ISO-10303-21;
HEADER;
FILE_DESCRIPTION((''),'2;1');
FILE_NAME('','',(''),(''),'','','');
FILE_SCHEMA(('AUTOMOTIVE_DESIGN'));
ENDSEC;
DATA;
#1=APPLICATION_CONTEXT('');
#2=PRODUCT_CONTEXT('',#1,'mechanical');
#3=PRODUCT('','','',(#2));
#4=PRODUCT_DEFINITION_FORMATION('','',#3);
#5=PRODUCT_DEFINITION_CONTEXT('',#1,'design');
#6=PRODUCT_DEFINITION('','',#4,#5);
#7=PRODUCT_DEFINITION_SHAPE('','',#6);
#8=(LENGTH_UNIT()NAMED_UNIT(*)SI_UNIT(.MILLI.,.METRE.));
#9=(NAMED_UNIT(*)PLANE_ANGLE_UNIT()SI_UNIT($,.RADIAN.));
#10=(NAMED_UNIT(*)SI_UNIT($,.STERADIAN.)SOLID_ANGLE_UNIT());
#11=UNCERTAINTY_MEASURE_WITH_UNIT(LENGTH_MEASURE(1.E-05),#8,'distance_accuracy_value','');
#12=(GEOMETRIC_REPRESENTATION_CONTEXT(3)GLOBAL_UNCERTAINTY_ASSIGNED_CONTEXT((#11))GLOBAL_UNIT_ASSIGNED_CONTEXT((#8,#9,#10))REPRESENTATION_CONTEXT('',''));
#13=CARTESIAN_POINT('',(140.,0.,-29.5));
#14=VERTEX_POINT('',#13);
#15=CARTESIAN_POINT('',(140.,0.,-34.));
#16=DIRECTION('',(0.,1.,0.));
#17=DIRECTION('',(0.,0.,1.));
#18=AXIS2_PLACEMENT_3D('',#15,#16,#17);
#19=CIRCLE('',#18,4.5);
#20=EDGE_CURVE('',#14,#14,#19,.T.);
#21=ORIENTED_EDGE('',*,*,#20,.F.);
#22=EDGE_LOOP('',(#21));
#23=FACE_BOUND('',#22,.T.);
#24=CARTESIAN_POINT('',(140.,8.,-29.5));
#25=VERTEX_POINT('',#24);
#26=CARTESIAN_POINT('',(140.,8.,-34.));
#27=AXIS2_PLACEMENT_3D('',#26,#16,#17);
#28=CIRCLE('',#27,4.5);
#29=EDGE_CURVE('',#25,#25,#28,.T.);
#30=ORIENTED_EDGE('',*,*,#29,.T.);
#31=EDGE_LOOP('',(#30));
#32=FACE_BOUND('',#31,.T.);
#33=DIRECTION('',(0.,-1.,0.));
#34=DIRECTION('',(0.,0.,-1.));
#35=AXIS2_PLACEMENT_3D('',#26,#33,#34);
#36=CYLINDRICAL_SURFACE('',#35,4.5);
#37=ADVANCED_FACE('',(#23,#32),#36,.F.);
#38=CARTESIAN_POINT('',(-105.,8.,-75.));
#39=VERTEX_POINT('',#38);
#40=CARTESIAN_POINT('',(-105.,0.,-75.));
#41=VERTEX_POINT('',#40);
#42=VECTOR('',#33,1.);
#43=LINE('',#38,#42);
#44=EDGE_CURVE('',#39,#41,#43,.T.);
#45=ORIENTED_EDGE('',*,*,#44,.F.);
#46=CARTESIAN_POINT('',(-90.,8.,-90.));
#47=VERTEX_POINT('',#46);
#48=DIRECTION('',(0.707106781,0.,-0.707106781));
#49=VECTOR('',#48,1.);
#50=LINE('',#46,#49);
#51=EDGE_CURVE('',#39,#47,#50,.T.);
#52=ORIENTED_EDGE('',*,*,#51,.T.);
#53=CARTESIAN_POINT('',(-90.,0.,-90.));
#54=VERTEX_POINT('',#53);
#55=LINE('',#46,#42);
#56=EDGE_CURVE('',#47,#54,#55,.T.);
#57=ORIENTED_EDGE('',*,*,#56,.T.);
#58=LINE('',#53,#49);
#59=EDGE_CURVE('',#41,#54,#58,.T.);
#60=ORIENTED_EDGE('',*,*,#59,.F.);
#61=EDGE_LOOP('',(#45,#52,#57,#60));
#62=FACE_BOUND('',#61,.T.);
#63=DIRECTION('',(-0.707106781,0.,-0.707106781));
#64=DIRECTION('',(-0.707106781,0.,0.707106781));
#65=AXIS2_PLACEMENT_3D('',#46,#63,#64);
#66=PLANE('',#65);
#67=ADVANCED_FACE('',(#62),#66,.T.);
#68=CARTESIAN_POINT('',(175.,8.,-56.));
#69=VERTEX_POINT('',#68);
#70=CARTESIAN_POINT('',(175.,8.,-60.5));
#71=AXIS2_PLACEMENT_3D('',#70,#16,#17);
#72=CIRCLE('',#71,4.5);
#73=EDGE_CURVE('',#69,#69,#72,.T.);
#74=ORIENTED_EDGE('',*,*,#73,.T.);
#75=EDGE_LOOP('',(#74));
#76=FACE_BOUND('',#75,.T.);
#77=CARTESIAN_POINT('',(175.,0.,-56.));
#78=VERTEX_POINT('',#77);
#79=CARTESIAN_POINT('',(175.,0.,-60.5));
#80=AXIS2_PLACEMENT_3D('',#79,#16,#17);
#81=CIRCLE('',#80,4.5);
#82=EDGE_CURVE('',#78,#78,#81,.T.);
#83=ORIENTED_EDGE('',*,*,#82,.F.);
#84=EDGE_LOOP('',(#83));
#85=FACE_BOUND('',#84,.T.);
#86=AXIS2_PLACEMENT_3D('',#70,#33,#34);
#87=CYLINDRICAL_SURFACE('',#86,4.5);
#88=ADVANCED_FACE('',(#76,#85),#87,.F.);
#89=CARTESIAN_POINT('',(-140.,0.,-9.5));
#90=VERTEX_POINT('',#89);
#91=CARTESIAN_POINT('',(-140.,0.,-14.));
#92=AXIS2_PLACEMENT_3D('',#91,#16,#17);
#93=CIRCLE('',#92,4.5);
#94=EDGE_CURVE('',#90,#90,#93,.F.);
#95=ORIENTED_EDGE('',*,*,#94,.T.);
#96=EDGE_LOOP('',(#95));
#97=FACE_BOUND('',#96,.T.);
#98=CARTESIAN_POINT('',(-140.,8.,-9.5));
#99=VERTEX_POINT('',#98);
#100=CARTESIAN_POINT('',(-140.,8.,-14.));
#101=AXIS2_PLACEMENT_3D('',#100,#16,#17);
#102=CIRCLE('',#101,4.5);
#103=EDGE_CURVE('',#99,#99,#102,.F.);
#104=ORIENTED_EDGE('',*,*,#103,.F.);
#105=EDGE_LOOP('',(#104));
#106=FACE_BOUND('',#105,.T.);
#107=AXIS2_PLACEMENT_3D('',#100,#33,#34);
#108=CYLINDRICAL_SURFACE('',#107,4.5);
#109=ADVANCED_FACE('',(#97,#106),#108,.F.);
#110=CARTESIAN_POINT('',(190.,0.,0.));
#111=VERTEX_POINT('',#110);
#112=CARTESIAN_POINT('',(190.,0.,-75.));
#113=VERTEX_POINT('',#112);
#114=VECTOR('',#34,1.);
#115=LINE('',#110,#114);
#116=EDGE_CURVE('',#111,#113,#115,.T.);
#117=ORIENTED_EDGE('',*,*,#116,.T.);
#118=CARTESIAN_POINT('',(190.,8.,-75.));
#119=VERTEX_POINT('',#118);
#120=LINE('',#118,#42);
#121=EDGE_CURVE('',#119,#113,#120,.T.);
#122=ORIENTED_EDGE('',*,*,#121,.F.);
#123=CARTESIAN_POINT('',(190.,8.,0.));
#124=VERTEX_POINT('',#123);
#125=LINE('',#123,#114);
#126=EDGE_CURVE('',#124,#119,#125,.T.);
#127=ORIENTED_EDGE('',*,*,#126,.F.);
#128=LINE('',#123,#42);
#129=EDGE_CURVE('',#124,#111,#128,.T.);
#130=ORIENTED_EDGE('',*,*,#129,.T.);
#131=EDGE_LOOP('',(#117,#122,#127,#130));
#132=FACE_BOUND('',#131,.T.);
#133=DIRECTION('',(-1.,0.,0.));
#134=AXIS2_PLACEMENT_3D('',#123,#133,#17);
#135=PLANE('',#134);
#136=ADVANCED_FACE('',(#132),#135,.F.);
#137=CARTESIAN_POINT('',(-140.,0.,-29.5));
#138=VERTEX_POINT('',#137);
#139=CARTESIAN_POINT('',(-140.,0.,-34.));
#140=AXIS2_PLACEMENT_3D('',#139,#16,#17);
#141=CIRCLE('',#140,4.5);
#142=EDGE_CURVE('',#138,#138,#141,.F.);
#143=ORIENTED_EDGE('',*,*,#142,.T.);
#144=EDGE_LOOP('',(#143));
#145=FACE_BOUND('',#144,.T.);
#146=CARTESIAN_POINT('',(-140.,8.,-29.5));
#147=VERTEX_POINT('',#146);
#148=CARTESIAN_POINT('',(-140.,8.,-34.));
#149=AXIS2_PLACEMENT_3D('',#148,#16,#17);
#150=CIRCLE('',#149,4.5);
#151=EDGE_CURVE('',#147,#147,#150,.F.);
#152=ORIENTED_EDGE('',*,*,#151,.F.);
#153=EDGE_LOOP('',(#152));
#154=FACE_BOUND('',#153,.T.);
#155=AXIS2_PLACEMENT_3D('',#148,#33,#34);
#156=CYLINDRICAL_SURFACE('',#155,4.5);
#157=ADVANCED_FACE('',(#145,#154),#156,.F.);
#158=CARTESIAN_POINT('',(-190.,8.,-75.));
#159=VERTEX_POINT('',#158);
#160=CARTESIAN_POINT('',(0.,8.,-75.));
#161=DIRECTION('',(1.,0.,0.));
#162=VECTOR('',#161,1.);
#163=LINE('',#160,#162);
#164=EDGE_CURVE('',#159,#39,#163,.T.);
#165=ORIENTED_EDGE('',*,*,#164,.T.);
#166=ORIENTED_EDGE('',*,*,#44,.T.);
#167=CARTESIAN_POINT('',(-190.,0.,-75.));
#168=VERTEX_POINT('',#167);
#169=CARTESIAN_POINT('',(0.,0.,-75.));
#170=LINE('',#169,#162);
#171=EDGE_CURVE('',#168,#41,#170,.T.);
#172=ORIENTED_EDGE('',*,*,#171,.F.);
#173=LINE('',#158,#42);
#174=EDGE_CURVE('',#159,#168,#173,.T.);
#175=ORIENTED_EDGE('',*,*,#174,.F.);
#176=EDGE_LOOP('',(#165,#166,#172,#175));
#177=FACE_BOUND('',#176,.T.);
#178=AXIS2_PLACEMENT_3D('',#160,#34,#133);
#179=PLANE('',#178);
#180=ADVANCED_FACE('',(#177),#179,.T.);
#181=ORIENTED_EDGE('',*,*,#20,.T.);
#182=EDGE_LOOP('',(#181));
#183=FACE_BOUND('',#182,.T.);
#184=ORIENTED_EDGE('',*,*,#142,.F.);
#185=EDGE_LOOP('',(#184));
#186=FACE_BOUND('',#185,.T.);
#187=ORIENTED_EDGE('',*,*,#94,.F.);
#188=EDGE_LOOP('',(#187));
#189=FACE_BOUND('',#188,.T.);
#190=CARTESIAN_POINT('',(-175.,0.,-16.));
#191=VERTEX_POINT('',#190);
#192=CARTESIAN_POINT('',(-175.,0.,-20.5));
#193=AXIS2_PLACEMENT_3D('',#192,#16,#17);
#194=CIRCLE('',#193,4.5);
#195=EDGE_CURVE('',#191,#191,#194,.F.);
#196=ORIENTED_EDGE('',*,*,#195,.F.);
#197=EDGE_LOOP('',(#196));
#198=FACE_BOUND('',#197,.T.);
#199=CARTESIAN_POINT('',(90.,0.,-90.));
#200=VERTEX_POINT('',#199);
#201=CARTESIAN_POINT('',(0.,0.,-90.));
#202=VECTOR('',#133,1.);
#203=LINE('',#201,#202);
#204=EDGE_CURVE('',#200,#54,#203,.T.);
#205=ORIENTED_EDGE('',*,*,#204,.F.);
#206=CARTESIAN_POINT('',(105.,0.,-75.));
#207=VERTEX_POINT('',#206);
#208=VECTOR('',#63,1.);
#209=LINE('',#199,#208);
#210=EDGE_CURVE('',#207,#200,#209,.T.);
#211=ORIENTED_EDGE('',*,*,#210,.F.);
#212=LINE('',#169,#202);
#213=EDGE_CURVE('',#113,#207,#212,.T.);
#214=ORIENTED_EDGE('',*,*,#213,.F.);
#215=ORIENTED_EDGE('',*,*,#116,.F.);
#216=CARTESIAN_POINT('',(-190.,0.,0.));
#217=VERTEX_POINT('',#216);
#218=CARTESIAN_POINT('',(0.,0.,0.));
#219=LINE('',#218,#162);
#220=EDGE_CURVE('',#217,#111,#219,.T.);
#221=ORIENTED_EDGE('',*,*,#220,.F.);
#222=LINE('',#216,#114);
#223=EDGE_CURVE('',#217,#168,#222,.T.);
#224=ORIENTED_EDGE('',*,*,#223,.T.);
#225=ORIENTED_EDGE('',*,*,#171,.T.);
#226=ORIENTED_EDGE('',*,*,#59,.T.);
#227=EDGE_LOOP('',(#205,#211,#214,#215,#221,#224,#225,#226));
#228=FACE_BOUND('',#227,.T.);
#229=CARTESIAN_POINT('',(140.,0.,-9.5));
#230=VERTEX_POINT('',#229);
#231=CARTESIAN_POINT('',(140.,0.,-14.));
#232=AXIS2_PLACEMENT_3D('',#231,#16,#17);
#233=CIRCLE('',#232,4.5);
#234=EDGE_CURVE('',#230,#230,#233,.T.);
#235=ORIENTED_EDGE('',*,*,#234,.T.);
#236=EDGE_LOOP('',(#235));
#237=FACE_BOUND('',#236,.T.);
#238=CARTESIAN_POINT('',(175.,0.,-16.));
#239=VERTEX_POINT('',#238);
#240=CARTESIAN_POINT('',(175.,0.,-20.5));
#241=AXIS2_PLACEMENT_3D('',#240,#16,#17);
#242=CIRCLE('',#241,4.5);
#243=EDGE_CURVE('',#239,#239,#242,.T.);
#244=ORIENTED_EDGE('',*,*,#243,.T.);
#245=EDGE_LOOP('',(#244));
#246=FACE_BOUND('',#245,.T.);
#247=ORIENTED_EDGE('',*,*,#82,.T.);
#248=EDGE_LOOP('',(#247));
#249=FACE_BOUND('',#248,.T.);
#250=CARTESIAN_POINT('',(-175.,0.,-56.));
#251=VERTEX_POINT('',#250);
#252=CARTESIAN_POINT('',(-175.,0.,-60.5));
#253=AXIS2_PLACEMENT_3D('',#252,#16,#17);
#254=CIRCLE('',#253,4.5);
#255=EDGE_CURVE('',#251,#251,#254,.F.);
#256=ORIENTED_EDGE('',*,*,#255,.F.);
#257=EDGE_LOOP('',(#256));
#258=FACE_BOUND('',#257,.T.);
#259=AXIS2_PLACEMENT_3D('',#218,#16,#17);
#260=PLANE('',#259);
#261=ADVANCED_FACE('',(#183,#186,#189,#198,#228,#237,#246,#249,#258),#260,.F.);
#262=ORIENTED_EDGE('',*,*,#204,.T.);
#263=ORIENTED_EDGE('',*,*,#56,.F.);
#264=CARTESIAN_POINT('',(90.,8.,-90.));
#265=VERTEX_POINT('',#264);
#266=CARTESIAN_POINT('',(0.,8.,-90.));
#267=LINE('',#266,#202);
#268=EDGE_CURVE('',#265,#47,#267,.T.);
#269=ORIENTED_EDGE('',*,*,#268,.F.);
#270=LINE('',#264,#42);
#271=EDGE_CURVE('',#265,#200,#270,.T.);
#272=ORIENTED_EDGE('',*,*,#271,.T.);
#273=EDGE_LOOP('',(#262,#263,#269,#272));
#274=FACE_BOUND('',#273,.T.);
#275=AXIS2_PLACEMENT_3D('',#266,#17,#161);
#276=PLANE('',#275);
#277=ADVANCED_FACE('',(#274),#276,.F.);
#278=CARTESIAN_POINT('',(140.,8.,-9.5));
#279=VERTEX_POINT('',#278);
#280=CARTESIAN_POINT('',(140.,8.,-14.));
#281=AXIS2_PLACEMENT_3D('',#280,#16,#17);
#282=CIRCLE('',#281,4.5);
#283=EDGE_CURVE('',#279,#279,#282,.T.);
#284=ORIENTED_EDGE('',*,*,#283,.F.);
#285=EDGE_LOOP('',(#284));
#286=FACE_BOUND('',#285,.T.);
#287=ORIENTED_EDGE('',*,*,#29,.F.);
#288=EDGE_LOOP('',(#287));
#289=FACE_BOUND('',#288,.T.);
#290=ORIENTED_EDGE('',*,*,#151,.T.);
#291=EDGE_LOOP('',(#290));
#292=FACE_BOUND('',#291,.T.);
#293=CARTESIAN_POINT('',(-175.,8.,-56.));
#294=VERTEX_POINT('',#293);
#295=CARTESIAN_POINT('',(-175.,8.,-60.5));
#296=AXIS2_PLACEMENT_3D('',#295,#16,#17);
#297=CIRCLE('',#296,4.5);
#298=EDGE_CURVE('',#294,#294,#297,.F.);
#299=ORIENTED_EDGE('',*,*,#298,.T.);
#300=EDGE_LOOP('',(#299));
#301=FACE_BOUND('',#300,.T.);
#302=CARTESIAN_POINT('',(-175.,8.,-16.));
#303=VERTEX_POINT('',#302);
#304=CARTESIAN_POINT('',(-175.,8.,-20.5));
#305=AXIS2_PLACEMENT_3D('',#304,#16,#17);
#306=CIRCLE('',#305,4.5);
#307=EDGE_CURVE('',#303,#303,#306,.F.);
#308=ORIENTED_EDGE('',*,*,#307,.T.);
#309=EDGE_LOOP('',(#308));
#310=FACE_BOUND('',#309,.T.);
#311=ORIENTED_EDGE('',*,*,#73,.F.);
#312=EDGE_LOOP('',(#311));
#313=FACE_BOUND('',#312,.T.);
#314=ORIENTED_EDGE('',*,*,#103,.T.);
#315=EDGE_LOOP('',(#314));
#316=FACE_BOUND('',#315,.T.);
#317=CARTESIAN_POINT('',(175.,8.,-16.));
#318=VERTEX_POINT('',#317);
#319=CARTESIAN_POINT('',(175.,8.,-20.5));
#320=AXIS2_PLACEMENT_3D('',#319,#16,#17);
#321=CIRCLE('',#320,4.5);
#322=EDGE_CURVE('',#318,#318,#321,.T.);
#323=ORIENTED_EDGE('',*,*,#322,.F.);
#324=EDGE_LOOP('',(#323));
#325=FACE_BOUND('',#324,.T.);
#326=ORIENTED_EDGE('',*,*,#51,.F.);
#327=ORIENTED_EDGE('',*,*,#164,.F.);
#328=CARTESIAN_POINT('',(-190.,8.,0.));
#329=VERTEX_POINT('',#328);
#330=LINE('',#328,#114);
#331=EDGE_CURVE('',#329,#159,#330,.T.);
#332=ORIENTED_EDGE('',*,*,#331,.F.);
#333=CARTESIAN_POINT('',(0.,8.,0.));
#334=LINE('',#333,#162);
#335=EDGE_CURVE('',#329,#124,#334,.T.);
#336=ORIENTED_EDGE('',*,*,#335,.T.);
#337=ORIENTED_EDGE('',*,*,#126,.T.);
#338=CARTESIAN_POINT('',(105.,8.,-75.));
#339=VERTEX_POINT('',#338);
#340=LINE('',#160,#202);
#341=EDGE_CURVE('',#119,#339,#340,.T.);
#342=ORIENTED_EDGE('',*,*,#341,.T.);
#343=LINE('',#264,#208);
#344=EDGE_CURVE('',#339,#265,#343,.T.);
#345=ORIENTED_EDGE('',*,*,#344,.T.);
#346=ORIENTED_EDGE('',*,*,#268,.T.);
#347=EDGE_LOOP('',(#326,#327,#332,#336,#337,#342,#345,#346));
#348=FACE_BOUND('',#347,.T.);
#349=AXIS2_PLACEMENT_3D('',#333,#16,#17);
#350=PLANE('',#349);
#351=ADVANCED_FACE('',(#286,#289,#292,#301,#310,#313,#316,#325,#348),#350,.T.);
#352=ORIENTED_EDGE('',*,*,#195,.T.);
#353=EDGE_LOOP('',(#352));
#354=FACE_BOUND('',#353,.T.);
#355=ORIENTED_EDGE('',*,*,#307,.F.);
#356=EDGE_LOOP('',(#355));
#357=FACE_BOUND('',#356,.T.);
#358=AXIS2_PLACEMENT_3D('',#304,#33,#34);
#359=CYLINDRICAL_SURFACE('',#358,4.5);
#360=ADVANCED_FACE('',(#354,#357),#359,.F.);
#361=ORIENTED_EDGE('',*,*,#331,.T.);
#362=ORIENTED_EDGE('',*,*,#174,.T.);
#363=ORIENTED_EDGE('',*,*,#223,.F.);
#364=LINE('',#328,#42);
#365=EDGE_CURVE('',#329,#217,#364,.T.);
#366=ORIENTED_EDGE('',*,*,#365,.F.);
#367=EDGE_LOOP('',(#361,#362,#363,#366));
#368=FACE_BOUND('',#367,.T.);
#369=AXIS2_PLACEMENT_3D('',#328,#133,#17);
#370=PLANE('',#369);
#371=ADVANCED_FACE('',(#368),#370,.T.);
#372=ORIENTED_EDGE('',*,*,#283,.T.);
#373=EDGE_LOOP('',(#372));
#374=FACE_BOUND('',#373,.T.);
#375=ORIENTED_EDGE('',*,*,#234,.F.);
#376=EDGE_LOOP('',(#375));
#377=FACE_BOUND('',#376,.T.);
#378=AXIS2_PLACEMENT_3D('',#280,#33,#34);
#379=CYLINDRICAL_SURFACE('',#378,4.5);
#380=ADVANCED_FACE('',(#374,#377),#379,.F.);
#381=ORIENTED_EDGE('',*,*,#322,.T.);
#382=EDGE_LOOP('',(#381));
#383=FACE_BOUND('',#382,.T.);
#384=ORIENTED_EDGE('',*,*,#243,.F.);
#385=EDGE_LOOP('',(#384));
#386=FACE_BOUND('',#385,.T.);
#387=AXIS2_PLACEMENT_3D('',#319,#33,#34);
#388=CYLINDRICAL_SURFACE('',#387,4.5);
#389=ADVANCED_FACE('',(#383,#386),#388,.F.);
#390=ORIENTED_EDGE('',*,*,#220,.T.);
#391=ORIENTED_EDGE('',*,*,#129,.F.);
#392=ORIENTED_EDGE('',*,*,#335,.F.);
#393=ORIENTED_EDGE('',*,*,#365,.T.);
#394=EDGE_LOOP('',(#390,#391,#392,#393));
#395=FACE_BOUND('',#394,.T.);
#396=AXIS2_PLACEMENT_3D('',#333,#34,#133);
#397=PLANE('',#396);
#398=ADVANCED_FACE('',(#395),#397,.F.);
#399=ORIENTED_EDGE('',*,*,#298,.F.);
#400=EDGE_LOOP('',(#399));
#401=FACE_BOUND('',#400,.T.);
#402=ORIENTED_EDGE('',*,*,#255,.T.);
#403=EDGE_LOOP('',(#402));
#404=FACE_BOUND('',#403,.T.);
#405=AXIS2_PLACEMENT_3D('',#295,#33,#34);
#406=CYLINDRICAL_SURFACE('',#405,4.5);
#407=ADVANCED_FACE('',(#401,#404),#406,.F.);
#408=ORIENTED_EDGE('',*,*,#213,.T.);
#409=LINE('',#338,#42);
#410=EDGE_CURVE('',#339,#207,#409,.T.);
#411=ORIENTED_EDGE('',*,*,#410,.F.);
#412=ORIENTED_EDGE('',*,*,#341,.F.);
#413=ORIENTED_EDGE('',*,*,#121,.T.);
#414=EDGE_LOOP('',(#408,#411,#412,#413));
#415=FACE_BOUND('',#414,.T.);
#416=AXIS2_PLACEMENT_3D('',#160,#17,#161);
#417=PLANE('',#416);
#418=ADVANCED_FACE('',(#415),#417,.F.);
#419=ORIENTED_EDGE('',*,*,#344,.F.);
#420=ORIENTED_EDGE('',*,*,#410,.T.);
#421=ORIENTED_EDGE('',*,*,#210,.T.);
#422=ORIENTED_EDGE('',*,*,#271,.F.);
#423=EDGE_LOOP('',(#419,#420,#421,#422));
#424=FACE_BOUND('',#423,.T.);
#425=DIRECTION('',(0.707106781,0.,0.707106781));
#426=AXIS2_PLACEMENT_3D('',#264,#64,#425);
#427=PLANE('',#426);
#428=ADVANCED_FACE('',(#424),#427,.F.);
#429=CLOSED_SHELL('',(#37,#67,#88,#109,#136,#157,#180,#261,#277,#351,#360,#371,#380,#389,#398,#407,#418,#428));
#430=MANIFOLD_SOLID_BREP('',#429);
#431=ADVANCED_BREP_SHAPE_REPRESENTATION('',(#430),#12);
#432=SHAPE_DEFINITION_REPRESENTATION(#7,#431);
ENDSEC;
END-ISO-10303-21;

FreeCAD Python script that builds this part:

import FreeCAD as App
import Part
import Sketcher
Q = App.Units.Quantity

doc = App.newDocument("Part")
params = doc.addObject("Spreadsheet::Sheet", "Params")
for row, (alias, value) in enumerate([
    ("sketch1_diameter", "9 mm"),
    ("sketch1_width", "380 mm"),
    ("sketch1_width2", "85 mm"),
    ("sketch1_width3", "180 mm"),
    ("sketch1_height", "75 mm"),
    ("pad1_length", "8 mm"),
], start=1):
    params.set(f"A{row}", alias)
    params.set(f"B{row}", "=" + value)
    params.setAlias(f"B{row}", alias)

body = doc.addObject("PartDesign::Body", "Body")

sketch1 = body.newObject("Sketcher::SketchObject", "Sketch")
sketch1.AttachmentSupport = (doc.getObject("XZ_Plane"), [""])
sketch1.MapMode = "FlatFace"
sketch1.addGeometry([
    Part.LineSegment(App.Vector(-190, -75, 0), App.Vector(-190, 0, 0)),
    Part.LineSegment(App.Vector(-190, 0, 0), App.Vector(190, 0, 0)),
    Part.LineSegment(App.Vector(190, 0, 0), App.Vector(190, -75, 0)),
    Part.LineSegment(App.Vector(190, -75, 0), App.Vector(105, -75, 0)),
    Part.LineSegment(App.Vector(105, -75, 0), App.Vector(90, -90, 0)),
    Part.LineSegment(App.Vector(90, -90, 0), App.Vector(-90, -90, 0)),
    Part.LineSegment(App.Vector(-90, -90, 0), App.Vector(-105, -75, 0)),
    Part.LineSegment(App.Vector(-105, -75, 0), App.Vector(-190, -75, 0)),
    Part.Circle(App.Vector(-175, -20.5, 0), App.Vector(0, 0, 1), 4.5),
    Part.Circle(App.Vector(-140, -14, 0), App.Vector(0, 0, 1), 4.5),
    Part.Circle(App.Vector(-140, -34, 0), App.Vector(0, 0, 1), 4.5),
    Part.Circle(App.Vector(-175, -60.5, 0), App.Vector(0, 0, 1), 4.5),
    Part.Circle(App.Vector(175, -60.5, 0), App.Vector(0, 0, 1), 4.5),
    Part.Circle(App.Vector(140, -14, 0), App.Vector(0, 0, 1), 4.5),
    Part.Circle(App.Vector(140, -34, 0), App.Vector(0, 0, 1), 4.5),
    Part.Circle(App.Vector(175, -20.5, 0), App.Vector(0, 0, 1), 4.5),
], False)
sketch1.addConstraint([
    Sketcher.Constraint("Coincident", 0, 2, 1, 1),
    Sketcher.Constraint("Coincident", 1, 2, 2, 1),
    Sketcher.Constraint("Coincident", 2, 2, 3, 1),
    Sketcher.Constraint("Coincident", 3, 2, 4, 1),
    Sketcher.Constraint("Coincident", 4, 2, 5, 1),
    Sketcher.Constraint("Coincident", 5, 2, 6, 1),
    Sketcher.Constraint("Coincident", 6, 2, 7, 1),
    Sketcher.Constraint("Coincident", 7, 2, 0, 1),
    Sketcher.Constraint("Vertical", 0),
    Sketcher.Constraint("Horizontal", 1),
    Sketcher.Constraint("Vertical", 2),
    Sketcher.Constraint("Horizontal", 3),
    Sketcher.Constraint("Horizontal", 5),
    Sketcher.Constraint("Horizontal", 7),
    Sketcher.Constraint("Equal", 8, 9),
    Sketcher.Constraint("Equal", 9, 10),
    Sketcher.Constraint("Equal", 10, 11),
    Sketcher.Constraint("Equal", 11, 12),
    Sketcher.Constraint("Equal", 12, 13),
    Sketcher.Constraint("Equal", 13, 14),
    Sketcher.Constraint("Equal", 14, 15),
    Sketcher.Constraint("Symmetric", 0, 2, 1, 2, -1, 1),
    Sketcher.Constraint("Symmetric", 11, 3, 12, 3, -2),
    Sketcher.Constraint("Symmetric", 9, 3, 13, 3, -2),
    Sketcher.Constraint("Symmetric", 10, 3, 14, 3, -2),
    Sketcher.Constraint("Symmetric", 8, 3, 15, 3, -2),
    Sketcher.Constraint("Symmetric", 3, 2, 6, 2, -2),
    Sketcher.Constraint("Perpendicular", 4, 6),
    Sketcher.Constraint("Vertical", 9, 3, 10, 3),
    Sketcher.Constraint("Vertical", 8, 3, 11, 3),
    Sketcher.Constraint("Equal", 4, 6),
    Sketcher.Constraint("Diameter", 8, Q("9 mm")),
    Sketcher.Constraint("DistanceX", 1, 1, 1, 2, Q("380 mm")),
    Sketcher.Constraint("DistanceX", 3, 2, 3, 1, Q("85 mm")),
    Sketcher.Constraint("DistanceX", 5, 2, 5, 1, Q("180 mm")),
    Sketcher.Constraint("DistanceY", 0, 1, 0, 2, Q("75 mm")),
    Sketcher.Constraint("DistanceX", 8, 3, -1, 1, Q("175 mm")),
    Sketcher.Constraint("DistanceX", 9, 3, -1, 1, Q("140 mm")),
    Sketcher.Constraint("DistanceY", 9, 3, -1, 1, Q("14 mm")),
    Sketcher.Constraint("DistanceY", 10, 3, -1, 1, Q("34 mm")),
    Sketcher.Constraint("DistanceY", 11, 3, 8, 3, Q("40 mm")),
    Sketcher.Constraint("DistanceY", 8, 3, -1, 1, Q("20.5 mm")),
])
sketch1.setExpression("Constraints[31]", "Params.sketch1_diameter")
sketch1.setExpression("Constraints[32]", "Params.sketch1_width")
sketch1.setExpression("Constraints[33]", "Params.sketch1_width2")
sketch1.setExpression("Constraints[34]", "Params.sketch1_width3")
sketch1.setExpression("Constraints[35]", "Params.sketch1_height")
pad1 = body.newObject("PartDesign::Pad", "Pad")
pad1.Profile = sketch1
pad1.setExpression("Length", "Params.pad1_length")
pad1.Reversed = True

doc.recompute()
